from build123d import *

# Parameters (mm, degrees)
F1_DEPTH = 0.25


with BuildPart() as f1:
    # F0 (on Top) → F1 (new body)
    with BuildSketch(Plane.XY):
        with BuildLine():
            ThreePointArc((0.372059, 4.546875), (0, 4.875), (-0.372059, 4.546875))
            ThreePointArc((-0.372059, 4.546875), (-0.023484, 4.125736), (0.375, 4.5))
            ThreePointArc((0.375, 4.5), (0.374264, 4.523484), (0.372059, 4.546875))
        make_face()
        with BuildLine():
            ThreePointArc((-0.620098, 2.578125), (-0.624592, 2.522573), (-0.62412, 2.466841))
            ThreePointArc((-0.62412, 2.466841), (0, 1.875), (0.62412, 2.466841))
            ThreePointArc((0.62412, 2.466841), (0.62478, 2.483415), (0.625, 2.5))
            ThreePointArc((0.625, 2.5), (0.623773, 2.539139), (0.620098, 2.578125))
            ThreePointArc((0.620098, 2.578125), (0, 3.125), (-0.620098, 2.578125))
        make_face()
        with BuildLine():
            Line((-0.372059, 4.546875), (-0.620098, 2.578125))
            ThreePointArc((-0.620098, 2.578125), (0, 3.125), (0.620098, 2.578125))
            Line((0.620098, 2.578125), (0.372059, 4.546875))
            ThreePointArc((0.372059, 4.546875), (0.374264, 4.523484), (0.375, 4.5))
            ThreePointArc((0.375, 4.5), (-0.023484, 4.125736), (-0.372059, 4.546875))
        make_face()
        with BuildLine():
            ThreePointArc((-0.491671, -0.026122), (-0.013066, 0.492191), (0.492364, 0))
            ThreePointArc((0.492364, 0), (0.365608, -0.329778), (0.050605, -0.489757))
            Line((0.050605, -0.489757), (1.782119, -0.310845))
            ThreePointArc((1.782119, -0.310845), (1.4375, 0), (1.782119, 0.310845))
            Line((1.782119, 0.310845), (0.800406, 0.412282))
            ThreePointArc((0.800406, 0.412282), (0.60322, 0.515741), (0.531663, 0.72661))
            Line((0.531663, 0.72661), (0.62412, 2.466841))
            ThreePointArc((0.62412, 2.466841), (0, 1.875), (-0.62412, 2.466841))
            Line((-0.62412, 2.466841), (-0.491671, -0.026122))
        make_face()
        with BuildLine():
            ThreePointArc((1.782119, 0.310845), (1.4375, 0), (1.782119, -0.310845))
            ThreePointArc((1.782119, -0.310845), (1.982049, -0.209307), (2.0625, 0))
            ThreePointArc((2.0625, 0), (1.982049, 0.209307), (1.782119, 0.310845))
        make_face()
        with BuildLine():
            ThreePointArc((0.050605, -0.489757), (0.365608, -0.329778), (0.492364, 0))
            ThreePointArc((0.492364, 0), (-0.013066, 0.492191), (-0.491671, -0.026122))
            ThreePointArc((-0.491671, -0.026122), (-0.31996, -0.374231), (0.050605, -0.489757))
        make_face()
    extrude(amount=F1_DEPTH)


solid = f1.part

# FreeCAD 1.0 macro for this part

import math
import FreeCAD as App
import Part
import Sketcher

V = App.Vector
Q = App.Units.Quantity

doc = App.newDocument("Part")
params = doc.addObject("Spreadsheet::Sheet", "Params")
for row, (alias, value) in enumerate([
    ("sketch1_radius", "0.300001 mm"),
    ("pad1_length", "0.25 mm"),
], start=1):
    params.set(f"A{row}", alias)
    params.set(f"B{row}", "=" + value)
    params.setAlias(f"B{row}", alias)

body = doc.addObject("PartDesign::Body", "Body")

sketch1 = body.newObject("Sketcher::SketchObject", "Sketch")
sketch1.AttachmentSupport = (doc.getObject("XY_Plane"), [""])
sketch1.MapMode = "FlatFace"
sketch1.addGeometry(Part.ArcOfCircle(Part.Circle(V(0, 4.5, 0), V(0, 0, 1), 0.375), math.radians(7), math.radians(173)), False)
sketch1.addGeometry(Part.LineSegment(V(-0.372, 4.547, 0), V(-0.62, 2.578, 0)), False)
sketch1.addGeometry(Part.ArcOfCircle(Part.Circle(V(0, 2.5, 0), V(0, 0, 1), 0.625), math.radians(172.82), math.radians(183.04)), False)
sketch1.addGeometry(Part.LineSegment(V(-0.624, 2.467, 0), V(-0.492, -0.026, 0)), False)
sketch1.addGeometry(Part.ArcOfCircle(Part.Circle(V(0, 0, 0), V(0, 0, 1), 0.492), math.radians(-177), math.radians(-84)), False)
sketch1.addGeometry(Part.LineSegment(V(0.051, -0.49, 0), V(1.782, -0.311, 0)), False)
sketch1.addGeometry(Part.ArcOfCircle(Part.Circle(V(1.75, 0, 0), V(0, 0, 1), 0.313), math.radians(-84), math.radians(0)), False)
sketch1.addGeometry(Part.ArcOfCircle(Part.Circle(V(1.75, 0, 0), V(0, 0, 1), 0.313), math.radians(0), math.radians(84)), False)
sketch1.addGeometry(Part.LineSegment(V(1.782, 0.311, 0), V(0.8, 0.412, 0)), False)
sketch1.addGeometry(Part.ArcOfCircle(Part.Circle(V(0.831, 0.711, 0), V(0, 0, 1), 0.3), math.radians(177), math.radians(264)), False)
sketch1.addGeometry(Part.LineSegment(V(0.532, 0.727, 0), V(0.624, 2.467, 0)), False)
sketch1.addGeometry(Part.ArcOfCircle(Part.Circle(V(0, 2.5, 0), V(0, 0, 1), 0.625), math.radians(-3.04), math.radians(0)), False)
sketch1.addGeometry(Part.ArcOfCircle(Part.Circle(V(0, 2.5, 0), V(0, 0, 1), 0.625), math.radians(0), math.radians(7.18)), False)
sketch1.addGeometry(Part.LineSegment(V(0.62, 2.578, 0), V(0.372, 4.547, 0)), False)
sketch1.addConstraint(Sketcher.Constraint("Tangent", 0, 2, 1, 1))
sketch1.addConstraint(Sketcher.Constraint("Coincident", 1, 2, 2, 1))
sketch1.addConstraint(Sketcher.Constraint("Coincident", 2, 2, 3, 1))
sketch1.addConstraint(Sketcher.Constraint("Coincident", 3, 2, 4, 1))
sketch1.addConstraint(Sketcher.Constraint("Coincident", 4, 2, 5, 1))
sketch1.addConstraint(Sketcher.Constraint("Coincident", 5, 2, 6, 1))
sketch1.addConstraint(Sketcher.Constraint("Coincident", 6, 2, 7, 1))
sketch1.addConstraint(Sketcher.Constraint("Coincident", 7, 2, 8, 1))
sketch1.addConstraint(Sketcher.Constraint("Coincident", 8, 2, 9, 2))
sketch1.addConstraint(Sketcher.Constraint("Coincident", 9, 1, 10, 1))
sketch1.addConstraint(Sketcher.Constraint("Coincident", 10, 2, 11, 1))
sketch1.addConstraint(Sketcher.Constraint("Coincident", 11, 2, 12, 1))
sketch1.addConstraint(Sketcher.Constraint("Coincident", 12, 2, 13, 1))
sketch1.addConstraint(Sketcher.Constraint("Tangent", 13, 2, 0, 1))
sketch1.addConstraint(Sketcher.Constraint("Coincident", 4, 3, -1, 1))
sketch1.addConstraint(Sketcher.Constraint("Coincident", 7, 3, 6, 3))
sketch1.addConstraint(Sketcher.Constraint("Symmetric", 2, 2, 10, 2, -2))
sketch1.addConstraint(Sketcher.Constraint("Symmetric", 1, 2, 12, 2, -2))
sketch1.addConstraint(Sketcher.Constraint("Symmetric", 5, 2, 7, 2, -1))
sketch1.addConstraint(Sketcher.Constraint("PointOnObject", 0, 3, -2))
sketch1.addConstraint(Sketcher.Constraint("PointOnObject", 6, 2, -1))
sketch1.addConstraint(Sketcher.Constraint("Radius", 9, Q("0.300001 mm")))
sketch1.addConstraint(Sketcher.Constraint("Radius", 0, Q("0.375 mm")))
sketch1.addConstraint(Sketcher.Constraint("DistanceY", 11, 3, 0, 3, Q("2.000002 mm")))
sketch1.addConstraint(Sketcher.Constraint("DistanceY", -1, 1, 0, 3, Q("4.5 mm")))
sketch1.addConstraint(Sketcher.Constraint("DistanceY", -1, 1, 11, 2, Q("2.5 mm")))
sketch1.addConstraint(Sketcher.Constraint("Radius", 6, Q("0.3125 mm")))
sketch1.addConstraint(Sketcher.Constraint("DistanceX", -1, 1, 6, 3, Q("1.75 mm")))
sketch1.addConstraint(Sketcher.Constraint("DistanceX", -1, 1, 11, 2, Q("0.625 mm")))
sketch1.addConstraint(Sketcher.Constraint("Radius", 2, Q("0.625093 mm")))
sketch1.addConstraint(Sketcher.Constraint("Radius", 4, Q("0.492363 mm")))
sketch1.addConstraint(Sketcher.Constraint("Radius", 11, Q("0.625082 mm")))
sketch1.addConstraint(Sketcher.Constraint("Radius", 12, Q("0.625165 mm")))
sketch1.addConstraint(Sketcher.Constraint("DistanceX", 1, 2, -1, 1, Q("0.620098 mm")))
sketch1.addConstraint(Sketcher.Constraint("DistanceY", 9, 3, 2, 3, Q("1.789301 mm")))
sketch1.addConstraint(Sketcher.Constraint("DistanceX", 0, 2, 9, 3, Q("1.203301 mm")))
sketch1.addConstraint(Sketcher.Constraint("Distance", 3, Q("2.496479 mm")))
sketch1.addConstraint(Sketcher.Constraint("Distance", 8, Q("0.98694 mm")))
sketch1.addConstraint(Sketcher.Constraint("DistanceY", -1, 1, 12, 3, Q("2.49999 mm")))
sketch1.addConstraint(Sketcher.Constraint("DistanceX", 2, 2, -1, 1, Q("0.62412 mm")))
sketch1.addConstraint(Sketcher.Constraint("DistanceX", -1, 1, 5, 2, Q("1.782119 mm")))
sketch1.addConstraint(Sketcher.Constraint("DistanceY", -1, 1, 9, 1, Q("0.72661 mm")))
sketch1.addConstraint(Sketcher.Constraint("DistanceY", 4, 2, 9, 3, Q("1.200451 mm")))
sketch1.setExpression("Constraints[21]", "Params.sketch1_radius")
pad1 = body.newObject("PartDesign::Pad", "Pad")
pad1.Profile = sketch1
pad1.setExpression("Length", "Params.pad1_length")

doc.recompute()
